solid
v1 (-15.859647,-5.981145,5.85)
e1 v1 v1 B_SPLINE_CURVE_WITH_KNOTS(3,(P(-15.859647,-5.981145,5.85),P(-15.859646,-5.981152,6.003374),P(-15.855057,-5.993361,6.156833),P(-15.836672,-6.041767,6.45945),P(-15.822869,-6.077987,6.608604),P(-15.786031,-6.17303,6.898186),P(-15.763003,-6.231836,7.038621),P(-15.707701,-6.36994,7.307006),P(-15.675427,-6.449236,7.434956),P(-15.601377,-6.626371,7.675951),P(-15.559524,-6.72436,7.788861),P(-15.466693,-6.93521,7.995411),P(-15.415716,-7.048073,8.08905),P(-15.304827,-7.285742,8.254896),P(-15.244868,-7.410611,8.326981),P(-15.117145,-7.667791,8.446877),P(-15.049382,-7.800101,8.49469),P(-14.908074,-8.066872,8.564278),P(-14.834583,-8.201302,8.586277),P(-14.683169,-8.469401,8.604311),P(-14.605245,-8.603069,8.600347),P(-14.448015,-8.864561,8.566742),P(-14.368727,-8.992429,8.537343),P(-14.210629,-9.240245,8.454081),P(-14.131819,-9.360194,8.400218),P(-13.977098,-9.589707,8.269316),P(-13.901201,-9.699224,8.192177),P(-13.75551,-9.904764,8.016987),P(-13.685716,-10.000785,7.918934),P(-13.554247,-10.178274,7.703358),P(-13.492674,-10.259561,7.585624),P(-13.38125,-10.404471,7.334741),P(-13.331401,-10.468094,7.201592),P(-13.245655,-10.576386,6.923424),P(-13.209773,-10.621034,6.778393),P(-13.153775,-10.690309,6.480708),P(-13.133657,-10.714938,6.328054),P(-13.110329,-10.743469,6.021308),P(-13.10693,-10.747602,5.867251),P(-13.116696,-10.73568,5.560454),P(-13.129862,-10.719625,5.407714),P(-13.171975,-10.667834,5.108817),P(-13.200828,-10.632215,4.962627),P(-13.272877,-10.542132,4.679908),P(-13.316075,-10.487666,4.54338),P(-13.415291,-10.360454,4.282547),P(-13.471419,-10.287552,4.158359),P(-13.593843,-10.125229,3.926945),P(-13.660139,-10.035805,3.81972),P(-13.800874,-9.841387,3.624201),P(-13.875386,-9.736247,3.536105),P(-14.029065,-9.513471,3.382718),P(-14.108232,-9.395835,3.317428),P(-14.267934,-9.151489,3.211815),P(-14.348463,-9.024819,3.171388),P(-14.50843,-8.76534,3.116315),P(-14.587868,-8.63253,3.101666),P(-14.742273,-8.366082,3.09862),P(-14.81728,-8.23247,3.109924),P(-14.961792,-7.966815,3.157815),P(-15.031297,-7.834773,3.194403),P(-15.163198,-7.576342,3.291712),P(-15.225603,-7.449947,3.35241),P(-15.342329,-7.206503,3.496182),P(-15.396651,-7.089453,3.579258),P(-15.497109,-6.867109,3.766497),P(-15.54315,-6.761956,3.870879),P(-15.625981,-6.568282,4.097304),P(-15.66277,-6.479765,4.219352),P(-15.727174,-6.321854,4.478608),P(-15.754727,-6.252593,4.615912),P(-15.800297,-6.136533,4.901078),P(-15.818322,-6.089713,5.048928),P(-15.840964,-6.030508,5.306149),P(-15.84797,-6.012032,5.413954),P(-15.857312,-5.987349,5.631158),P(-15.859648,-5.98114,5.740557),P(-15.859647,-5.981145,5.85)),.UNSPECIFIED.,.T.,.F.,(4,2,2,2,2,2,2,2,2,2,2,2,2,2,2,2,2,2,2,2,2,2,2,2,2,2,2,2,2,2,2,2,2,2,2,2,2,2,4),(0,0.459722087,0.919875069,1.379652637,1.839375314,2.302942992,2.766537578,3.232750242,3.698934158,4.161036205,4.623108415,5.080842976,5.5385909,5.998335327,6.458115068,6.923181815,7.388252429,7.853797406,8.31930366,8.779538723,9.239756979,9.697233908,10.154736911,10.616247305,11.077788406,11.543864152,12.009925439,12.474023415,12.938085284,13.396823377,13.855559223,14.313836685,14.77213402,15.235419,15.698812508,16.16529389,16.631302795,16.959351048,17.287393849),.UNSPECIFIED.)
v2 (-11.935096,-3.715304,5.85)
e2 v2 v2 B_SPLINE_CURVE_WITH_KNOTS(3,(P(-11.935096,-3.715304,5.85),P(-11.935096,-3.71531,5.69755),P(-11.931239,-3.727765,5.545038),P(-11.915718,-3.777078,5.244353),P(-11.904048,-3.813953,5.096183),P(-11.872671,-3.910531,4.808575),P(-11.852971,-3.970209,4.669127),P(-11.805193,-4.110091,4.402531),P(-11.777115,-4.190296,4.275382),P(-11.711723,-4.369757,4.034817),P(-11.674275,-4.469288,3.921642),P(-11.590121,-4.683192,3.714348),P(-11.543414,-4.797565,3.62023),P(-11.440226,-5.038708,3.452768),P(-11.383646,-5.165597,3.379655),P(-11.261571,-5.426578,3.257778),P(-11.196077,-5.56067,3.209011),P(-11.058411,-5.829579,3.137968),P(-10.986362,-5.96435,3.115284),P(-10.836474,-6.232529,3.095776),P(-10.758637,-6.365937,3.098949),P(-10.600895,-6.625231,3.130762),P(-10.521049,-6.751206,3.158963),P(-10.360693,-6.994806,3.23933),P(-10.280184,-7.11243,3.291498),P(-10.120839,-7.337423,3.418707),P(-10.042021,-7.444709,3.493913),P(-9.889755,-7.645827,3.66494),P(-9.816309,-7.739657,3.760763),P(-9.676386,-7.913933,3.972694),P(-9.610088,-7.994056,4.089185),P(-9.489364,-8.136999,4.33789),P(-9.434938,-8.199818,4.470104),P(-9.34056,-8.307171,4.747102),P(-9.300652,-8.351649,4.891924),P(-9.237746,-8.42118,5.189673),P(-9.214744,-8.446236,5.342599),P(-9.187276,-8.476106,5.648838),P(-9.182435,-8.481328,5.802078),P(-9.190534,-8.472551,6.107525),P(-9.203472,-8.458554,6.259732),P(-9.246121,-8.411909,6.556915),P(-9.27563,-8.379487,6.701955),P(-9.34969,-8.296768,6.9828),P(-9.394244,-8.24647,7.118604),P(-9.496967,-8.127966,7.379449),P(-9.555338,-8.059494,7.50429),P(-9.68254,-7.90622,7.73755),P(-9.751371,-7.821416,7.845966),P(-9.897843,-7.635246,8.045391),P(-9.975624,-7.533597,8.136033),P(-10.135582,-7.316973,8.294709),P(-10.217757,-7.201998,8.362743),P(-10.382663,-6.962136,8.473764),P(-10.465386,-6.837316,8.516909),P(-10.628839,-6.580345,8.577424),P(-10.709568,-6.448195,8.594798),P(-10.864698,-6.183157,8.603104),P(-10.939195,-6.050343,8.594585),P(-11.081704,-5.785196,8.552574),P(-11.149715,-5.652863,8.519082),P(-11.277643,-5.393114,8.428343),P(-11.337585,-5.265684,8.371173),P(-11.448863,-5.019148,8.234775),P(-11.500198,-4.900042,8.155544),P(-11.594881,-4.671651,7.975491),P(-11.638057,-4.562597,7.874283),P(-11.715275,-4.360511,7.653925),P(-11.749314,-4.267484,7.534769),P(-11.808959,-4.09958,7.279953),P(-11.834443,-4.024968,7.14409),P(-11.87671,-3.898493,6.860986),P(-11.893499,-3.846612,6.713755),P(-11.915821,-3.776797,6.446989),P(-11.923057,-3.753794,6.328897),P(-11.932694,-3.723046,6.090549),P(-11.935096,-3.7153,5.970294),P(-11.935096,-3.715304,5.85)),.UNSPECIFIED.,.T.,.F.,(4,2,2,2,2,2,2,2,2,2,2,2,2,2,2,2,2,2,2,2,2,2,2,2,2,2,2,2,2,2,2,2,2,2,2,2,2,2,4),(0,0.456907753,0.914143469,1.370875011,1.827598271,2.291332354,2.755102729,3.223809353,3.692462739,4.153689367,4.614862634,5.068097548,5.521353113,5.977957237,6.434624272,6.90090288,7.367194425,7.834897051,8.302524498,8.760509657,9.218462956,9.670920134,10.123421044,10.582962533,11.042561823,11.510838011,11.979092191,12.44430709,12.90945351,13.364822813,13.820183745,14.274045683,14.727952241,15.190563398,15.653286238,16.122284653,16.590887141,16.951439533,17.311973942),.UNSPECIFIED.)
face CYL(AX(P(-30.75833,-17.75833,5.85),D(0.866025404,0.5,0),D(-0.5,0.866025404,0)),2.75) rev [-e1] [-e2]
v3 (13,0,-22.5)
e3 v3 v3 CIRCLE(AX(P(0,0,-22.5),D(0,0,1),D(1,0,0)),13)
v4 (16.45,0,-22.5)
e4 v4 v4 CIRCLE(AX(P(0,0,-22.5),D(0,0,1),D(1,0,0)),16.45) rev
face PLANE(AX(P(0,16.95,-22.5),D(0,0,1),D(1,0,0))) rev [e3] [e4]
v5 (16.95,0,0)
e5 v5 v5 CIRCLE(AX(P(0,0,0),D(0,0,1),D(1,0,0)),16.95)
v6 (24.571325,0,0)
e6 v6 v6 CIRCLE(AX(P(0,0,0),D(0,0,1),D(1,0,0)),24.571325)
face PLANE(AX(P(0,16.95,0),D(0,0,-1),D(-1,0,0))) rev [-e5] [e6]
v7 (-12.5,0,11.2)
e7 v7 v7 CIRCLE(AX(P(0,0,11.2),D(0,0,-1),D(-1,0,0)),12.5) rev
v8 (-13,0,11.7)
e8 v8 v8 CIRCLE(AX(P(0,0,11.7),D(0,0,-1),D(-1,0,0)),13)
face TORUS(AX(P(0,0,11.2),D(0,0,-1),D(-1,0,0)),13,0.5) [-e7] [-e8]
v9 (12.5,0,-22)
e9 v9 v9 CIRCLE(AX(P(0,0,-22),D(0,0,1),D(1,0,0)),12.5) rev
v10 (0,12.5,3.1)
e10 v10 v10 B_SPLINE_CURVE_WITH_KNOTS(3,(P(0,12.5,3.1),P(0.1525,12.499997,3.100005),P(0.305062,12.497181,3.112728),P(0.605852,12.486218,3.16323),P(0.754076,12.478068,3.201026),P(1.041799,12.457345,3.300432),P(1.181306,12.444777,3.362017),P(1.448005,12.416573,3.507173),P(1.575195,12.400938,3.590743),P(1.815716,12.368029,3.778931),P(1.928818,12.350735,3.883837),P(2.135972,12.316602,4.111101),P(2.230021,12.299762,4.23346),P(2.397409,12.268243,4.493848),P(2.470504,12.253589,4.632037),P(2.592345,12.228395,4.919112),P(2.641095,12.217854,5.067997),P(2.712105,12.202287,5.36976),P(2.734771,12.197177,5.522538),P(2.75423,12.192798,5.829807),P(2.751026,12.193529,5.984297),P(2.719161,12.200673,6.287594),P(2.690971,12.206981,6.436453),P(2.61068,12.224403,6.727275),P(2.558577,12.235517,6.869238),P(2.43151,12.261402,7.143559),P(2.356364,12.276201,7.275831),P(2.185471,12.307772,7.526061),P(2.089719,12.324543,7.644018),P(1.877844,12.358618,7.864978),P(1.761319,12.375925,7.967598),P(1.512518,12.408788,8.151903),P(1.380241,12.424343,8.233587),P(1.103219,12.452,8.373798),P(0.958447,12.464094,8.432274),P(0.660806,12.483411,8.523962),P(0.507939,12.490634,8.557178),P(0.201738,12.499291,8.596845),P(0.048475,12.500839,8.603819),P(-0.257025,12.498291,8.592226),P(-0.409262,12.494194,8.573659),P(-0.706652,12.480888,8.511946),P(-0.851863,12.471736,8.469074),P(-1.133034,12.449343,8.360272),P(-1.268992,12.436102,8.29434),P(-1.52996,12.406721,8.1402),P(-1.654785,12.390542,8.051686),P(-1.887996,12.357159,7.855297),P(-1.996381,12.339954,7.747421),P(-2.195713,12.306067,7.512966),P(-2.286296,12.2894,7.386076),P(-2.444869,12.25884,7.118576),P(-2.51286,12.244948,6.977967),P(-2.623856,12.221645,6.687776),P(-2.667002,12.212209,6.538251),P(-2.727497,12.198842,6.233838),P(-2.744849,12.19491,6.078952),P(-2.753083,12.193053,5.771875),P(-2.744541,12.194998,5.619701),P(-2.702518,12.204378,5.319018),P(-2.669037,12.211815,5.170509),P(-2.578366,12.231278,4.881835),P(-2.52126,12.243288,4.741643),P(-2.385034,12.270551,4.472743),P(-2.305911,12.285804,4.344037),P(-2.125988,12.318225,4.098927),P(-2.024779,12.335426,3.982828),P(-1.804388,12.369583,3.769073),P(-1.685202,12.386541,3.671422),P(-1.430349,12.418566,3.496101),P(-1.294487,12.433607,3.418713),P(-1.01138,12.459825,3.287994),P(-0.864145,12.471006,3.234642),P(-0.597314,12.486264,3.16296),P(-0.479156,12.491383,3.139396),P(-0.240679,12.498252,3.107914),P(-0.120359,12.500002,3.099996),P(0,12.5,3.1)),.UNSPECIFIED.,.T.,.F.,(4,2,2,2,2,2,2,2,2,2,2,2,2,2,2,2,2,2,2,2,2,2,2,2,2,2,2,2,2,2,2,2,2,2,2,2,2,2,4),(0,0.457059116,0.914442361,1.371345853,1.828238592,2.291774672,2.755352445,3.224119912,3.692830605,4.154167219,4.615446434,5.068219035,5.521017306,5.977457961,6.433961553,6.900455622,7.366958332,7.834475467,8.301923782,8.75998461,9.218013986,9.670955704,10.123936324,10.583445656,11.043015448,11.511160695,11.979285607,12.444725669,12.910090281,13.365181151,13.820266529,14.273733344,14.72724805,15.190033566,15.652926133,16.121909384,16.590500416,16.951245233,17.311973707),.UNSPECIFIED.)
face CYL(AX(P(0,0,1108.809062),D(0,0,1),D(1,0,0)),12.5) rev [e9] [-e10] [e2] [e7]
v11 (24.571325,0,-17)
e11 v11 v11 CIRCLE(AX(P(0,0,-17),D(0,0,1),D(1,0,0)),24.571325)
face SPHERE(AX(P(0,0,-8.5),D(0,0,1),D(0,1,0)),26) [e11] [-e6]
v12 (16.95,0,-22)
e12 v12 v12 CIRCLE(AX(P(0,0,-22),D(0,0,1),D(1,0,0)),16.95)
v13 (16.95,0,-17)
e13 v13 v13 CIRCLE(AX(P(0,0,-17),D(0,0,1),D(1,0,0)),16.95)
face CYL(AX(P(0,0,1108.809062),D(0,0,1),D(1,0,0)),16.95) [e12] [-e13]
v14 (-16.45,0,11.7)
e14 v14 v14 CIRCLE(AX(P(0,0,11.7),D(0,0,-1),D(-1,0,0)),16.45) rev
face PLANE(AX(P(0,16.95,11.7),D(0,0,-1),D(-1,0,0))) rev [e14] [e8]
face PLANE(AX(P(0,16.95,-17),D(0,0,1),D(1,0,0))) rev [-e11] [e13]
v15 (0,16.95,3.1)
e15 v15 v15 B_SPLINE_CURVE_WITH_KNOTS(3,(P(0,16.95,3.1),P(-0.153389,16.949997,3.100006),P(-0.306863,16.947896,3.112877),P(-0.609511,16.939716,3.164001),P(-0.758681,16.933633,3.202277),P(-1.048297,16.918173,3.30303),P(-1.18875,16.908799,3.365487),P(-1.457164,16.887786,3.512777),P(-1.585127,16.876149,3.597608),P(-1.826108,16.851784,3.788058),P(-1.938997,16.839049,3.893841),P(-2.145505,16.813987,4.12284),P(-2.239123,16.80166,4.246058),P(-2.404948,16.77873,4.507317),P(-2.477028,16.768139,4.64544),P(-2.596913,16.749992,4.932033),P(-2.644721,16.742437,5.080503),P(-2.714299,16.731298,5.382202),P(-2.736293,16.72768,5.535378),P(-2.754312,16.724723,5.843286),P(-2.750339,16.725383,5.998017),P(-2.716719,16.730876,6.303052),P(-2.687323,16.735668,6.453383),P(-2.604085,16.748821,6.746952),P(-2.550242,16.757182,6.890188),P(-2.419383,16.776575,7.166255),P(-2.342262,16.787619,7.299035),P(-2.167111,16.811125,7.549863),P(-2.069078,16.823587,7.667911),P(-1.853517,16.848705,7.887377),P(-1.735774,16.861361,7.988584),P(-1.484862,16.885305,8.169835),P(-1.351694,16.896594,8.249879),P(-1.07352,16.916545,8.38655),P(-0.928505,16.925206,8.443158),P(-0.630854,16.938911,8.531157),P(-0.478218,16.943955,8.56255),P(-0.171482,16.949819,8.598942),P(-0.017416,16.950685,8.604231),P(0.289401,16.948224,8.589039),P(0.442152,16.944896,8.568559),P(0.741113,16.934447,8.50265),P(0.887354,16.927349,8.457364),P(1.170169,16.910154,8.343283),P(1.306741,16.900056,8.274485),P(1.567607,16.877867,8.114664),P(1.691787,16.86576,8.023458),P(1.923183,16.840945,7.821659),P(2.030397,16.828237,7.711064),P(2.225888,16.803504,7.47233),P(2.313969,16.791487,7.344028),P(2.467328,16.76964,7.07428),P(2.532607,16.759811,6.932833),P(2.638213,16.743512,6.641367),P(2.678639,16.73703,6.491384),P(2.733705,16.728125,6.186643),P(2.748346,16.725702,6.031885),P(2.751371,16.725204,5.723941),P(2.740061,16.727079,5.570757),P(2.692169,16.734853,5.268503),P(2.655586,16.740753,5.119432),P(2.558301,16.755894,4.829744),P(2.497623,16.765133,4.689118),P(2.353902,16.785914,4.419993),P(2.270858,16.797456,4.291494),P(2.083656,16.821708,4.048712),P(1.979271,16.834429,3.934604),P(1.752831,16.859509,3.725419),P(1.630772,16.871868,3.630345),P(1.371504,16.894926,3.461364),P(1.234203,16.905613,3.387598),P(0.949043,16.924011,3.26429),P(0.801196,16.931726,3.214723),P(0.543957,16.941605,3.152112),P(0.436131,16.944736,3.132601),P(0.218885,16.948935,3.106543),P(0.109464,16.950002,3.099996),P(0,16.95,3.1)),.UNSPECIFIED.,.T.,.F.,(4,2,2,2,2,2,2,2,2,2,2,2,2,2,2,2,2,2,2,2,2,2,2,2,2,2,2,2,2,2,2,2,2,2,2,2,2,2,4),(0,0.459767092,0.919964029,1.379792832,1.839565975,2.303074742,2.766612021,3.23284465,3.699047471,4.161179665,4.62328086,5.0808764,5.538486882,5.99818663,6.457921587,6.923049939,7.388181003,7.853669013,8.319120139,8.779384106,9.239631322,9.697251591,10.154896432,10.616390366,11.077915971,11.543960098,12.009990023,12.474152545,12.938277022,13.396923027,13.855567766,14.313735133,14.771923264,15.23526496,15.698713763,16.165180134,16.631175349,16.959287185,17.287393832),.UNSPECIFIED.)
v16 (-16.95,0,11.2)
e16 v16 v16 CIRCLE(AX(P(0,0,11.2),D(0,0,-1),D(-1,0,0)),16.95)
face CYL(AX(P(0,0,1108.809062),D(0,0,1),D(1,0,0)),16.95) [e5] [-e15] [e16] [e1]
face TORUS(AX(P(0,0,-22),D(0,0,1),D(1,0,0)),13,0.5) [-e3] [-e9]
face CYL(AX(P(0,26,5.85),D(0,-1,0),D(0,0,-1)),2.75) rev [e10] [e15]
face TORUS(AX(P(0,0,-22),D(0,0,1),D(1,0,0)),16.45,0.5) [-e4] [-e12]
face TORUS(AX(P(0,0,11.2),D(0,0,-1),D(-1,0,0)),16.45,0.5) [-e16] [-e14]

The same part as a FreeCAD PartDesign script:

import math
import FreeCAD as App
import Part
import Sketcher
from FreeCAD import Vector
Q = App.Units.Quantity


def edges_at(feature, points):
    """Names of the edges that pass closest to the given points."""
    edges = feature.Shape.Edges
    near = lambda p: min(range(len(edges)), key=lambda i: edges[i].distToShape(Part.Vertex(*p))[0])
    return sorted({f"Edge{near(p) + 1}" for p in points})

doc = App.newDocument("Part")
body = doc.addObject("PartDesign::Body", "Body")

# Sketch on YZ plane
sketch1 = body.newObject("Sketcher::SketchObject", "Sketch")
sketch1.AttachmentSupport = (doc.getObject("YZ_Plane"), [""])
sketch1.MapMode = "FlatFace"
sketch1.addGeometry(Part.LineSegment(Vector(16.95, -22.5, 0), Vector(16.95, -17, 0)), False)
sketch1.addGeometry(Part.LineSegment(Vector(16.95, -17, 0), Vector(24.571325, -17, 0)), False)
sketch1.addGeometry(Part.ArcOfCircle(Part.Circle(Vector(0, -8.5, 0), Vector(0, 0, 1), 26), math.radians(-19.082125), math.radians(19.082125)), False)
sketch1.addGeometry(Part.LineSegment(Vector(24.571325, 0, 0), Vector(16.95, 0, 0)), False)
sketch1.addGeometry(Part.LineSegment(Vector(16.95, 0, 0), Vector(16.95, 11.7, 0)), False)
sketch1.addGeometry(Part.LineSegment(Vector(16.95, 11.7, 0), Vector(12.5, 11.7, 0)), False)
sketch1.addGeometry(Part.LineSegment(Vector(12.5, 11.7, 0), Vector(12.5, -22.5, 0)), False)
sketch1.addGeometry(Part.LineSegment(Vector(12.5, -22.5, 0), Vector(16.95, -22.5, 0)), False)
sketch1.addConstraint(Sketcher.Constraint("Coincident", 0, 2, 1, 1))
sketch1.addConstraint(Sketcher.Constraint("Coincident", 1, 2, 2, 1))
sketch1.addConstraint(Sketcher.Constraint("Coincident", 2, 2, 3, 1))
sketch1.addConstraint(Sketcher.Constraint("Coincident", 3, 2, 4, 1))
sketch1.addConstraint(Sketcher.Constraint("Coincident", 4, 2, 5, 1))
sketch1.addConstraint(Sketcher.Constraint("Coincident", 5, 2, 6, 1))
sketch1.addConstraint(Sketcher.Constraint("Coincident", 6, 2, 7, 1))
sketch1.addConstraint(Sketcher.Constraint("Coincident", 7, 2, 0, 1))
sketch1.addConstraint(Sketcher.Constraint("Vertical", 0))
sketch1.addConstraint(Sketcher.Constraint("Horizontal", 1))
sketch1.addConstraint(Sketcher.Constraint("Horizontal", 3))
sketch1.addConstraint(Sketcher.Constraint("Vertical", 4))
sketch1.addConstraint(Sketcher.Constraint("Horizontal", 5))
sketch1.addConstraint(Sketcher.Constraint("Vertical", 6))
sketch1.addConstraint(Sketcher.Constraint("Horizontal", 7))
sketch1.addConstraint(Sketcher.Constraint("PointOnObject", 2, 3, -2))
sketch1.addConstraint(Sketcher.Constraint("PointOnObject", 2, 2, -1))
sketch1.addConstraint(Sketcher.Constraint("Vertical", 1, 2, 2, 2))
sketch1.addConstraint(Sketcher.Constraint("Vertical", 0, 2, 3, 2))
sketch1.addConstraint(Sketcher.Constraint("Radius", 2, Q("26 mm")))
sketch1.addConstraint(Sketcher.Constraint("DistanceY", 0, 1, 0, 2, Q("5.5 mm")))
sketch1.addConstraint(Sketcher.Constraint("DistanceY", 4, 1, 4, 2, Q("11.7 mm")))
sketch1.addConstraint(Sketcher.Constraint("DistanceY", 6, 2, 6, 1, Q("34.2 mm")))
sketch1.addConstraint(Sketcher.Constraint("DistanceX", 5, 2, 5, 1, Q("4.45 mm")))
sketch1.addConstraint(Sketcher.Constraint("DistanceX", -1, 1, 5, 2, Q("12.5 mm")))
revolution = body.newObject("PartDesign::Revolution", "Revolution")
revolution.Profile = sketch1
revolution.ReferenceAxis = (sketch1, ["V_Axis"])
revolution.Angle = 360

# Sketch on XZ plane
sketch2 = body.newObject("Sketcher::SketchObject", "Sketch001")
sketch2.AttachmentSupport = (doc.getObject("XZ_Plane"), [""])
sketch2.MapMode = "FlatFace"
sketch2.addGeometry(Part.Circle(Vector(0, 5.85, 0), Vector(0, 0, 1), 2.75), False)
sketch2.addConstraint(Sketcher.Constraint("PointOnObject", 0, 3, -2))
sketch2.addConstraint(Sketcher.Constraint("Diameter", 0, Q("5.5 mm")))
sketch2.addConstraint(Sketcher.Constraint("DistanceY", -1, 1, 0, 3, Q("5.85 mm")))
pocket1 = body.newObject("PartDesign::Pocket", "Pocket")
pocket1.Profile = sketch2
pocket1.Type = "ThroughAll"

# Sketch on an angled plane
sketch3 = body.newObject("Sketcher::SketchObject", "Sketch002")
sketch3.Placement = App.Placement(Vector(0, 0, 0), App.Rotation(Vector(0, 0, -1), Vector(-0.5, 0.866025404, 0), Vector(0.866025404, 0.5, 0), "ZXY"))
sketch3.addGeometry(Part.Circle(Vector(-5.85, 0, 0), Vector(0, 0, 1), 2.75), False)
sketch3.addConstraint(Sketcher.Constraint("PointOnObject", 0, 3, -1))
sketch3.addConstraint(Sketcher.Constraint("Diameter", 0, Q("5.5 mm")))
sketch3.addConstraint(Sketcher.Constraint("DistanceX", 0, 3, -1, 1, Q("5.85 mm")))
pocket2 = body.newObject("PartDesign::Pocket", "Pocket001")
pocket2.Profile = sketch3
pocket2.Type = "ThroughAll"
doc.recompute()

fillet = body.newObject("PartDesign::Fillet", "Fillet")
fillet.Base = (pocket2, edges_at(pocket2, [
    (0, -12.5, 11.7),
    (0, -12.5, -22.5),
    (0, -16.95, -22.5),
    (0, -16.95, 11.7),
]))
fillet.Radius = 0.5

doc.recompute()
